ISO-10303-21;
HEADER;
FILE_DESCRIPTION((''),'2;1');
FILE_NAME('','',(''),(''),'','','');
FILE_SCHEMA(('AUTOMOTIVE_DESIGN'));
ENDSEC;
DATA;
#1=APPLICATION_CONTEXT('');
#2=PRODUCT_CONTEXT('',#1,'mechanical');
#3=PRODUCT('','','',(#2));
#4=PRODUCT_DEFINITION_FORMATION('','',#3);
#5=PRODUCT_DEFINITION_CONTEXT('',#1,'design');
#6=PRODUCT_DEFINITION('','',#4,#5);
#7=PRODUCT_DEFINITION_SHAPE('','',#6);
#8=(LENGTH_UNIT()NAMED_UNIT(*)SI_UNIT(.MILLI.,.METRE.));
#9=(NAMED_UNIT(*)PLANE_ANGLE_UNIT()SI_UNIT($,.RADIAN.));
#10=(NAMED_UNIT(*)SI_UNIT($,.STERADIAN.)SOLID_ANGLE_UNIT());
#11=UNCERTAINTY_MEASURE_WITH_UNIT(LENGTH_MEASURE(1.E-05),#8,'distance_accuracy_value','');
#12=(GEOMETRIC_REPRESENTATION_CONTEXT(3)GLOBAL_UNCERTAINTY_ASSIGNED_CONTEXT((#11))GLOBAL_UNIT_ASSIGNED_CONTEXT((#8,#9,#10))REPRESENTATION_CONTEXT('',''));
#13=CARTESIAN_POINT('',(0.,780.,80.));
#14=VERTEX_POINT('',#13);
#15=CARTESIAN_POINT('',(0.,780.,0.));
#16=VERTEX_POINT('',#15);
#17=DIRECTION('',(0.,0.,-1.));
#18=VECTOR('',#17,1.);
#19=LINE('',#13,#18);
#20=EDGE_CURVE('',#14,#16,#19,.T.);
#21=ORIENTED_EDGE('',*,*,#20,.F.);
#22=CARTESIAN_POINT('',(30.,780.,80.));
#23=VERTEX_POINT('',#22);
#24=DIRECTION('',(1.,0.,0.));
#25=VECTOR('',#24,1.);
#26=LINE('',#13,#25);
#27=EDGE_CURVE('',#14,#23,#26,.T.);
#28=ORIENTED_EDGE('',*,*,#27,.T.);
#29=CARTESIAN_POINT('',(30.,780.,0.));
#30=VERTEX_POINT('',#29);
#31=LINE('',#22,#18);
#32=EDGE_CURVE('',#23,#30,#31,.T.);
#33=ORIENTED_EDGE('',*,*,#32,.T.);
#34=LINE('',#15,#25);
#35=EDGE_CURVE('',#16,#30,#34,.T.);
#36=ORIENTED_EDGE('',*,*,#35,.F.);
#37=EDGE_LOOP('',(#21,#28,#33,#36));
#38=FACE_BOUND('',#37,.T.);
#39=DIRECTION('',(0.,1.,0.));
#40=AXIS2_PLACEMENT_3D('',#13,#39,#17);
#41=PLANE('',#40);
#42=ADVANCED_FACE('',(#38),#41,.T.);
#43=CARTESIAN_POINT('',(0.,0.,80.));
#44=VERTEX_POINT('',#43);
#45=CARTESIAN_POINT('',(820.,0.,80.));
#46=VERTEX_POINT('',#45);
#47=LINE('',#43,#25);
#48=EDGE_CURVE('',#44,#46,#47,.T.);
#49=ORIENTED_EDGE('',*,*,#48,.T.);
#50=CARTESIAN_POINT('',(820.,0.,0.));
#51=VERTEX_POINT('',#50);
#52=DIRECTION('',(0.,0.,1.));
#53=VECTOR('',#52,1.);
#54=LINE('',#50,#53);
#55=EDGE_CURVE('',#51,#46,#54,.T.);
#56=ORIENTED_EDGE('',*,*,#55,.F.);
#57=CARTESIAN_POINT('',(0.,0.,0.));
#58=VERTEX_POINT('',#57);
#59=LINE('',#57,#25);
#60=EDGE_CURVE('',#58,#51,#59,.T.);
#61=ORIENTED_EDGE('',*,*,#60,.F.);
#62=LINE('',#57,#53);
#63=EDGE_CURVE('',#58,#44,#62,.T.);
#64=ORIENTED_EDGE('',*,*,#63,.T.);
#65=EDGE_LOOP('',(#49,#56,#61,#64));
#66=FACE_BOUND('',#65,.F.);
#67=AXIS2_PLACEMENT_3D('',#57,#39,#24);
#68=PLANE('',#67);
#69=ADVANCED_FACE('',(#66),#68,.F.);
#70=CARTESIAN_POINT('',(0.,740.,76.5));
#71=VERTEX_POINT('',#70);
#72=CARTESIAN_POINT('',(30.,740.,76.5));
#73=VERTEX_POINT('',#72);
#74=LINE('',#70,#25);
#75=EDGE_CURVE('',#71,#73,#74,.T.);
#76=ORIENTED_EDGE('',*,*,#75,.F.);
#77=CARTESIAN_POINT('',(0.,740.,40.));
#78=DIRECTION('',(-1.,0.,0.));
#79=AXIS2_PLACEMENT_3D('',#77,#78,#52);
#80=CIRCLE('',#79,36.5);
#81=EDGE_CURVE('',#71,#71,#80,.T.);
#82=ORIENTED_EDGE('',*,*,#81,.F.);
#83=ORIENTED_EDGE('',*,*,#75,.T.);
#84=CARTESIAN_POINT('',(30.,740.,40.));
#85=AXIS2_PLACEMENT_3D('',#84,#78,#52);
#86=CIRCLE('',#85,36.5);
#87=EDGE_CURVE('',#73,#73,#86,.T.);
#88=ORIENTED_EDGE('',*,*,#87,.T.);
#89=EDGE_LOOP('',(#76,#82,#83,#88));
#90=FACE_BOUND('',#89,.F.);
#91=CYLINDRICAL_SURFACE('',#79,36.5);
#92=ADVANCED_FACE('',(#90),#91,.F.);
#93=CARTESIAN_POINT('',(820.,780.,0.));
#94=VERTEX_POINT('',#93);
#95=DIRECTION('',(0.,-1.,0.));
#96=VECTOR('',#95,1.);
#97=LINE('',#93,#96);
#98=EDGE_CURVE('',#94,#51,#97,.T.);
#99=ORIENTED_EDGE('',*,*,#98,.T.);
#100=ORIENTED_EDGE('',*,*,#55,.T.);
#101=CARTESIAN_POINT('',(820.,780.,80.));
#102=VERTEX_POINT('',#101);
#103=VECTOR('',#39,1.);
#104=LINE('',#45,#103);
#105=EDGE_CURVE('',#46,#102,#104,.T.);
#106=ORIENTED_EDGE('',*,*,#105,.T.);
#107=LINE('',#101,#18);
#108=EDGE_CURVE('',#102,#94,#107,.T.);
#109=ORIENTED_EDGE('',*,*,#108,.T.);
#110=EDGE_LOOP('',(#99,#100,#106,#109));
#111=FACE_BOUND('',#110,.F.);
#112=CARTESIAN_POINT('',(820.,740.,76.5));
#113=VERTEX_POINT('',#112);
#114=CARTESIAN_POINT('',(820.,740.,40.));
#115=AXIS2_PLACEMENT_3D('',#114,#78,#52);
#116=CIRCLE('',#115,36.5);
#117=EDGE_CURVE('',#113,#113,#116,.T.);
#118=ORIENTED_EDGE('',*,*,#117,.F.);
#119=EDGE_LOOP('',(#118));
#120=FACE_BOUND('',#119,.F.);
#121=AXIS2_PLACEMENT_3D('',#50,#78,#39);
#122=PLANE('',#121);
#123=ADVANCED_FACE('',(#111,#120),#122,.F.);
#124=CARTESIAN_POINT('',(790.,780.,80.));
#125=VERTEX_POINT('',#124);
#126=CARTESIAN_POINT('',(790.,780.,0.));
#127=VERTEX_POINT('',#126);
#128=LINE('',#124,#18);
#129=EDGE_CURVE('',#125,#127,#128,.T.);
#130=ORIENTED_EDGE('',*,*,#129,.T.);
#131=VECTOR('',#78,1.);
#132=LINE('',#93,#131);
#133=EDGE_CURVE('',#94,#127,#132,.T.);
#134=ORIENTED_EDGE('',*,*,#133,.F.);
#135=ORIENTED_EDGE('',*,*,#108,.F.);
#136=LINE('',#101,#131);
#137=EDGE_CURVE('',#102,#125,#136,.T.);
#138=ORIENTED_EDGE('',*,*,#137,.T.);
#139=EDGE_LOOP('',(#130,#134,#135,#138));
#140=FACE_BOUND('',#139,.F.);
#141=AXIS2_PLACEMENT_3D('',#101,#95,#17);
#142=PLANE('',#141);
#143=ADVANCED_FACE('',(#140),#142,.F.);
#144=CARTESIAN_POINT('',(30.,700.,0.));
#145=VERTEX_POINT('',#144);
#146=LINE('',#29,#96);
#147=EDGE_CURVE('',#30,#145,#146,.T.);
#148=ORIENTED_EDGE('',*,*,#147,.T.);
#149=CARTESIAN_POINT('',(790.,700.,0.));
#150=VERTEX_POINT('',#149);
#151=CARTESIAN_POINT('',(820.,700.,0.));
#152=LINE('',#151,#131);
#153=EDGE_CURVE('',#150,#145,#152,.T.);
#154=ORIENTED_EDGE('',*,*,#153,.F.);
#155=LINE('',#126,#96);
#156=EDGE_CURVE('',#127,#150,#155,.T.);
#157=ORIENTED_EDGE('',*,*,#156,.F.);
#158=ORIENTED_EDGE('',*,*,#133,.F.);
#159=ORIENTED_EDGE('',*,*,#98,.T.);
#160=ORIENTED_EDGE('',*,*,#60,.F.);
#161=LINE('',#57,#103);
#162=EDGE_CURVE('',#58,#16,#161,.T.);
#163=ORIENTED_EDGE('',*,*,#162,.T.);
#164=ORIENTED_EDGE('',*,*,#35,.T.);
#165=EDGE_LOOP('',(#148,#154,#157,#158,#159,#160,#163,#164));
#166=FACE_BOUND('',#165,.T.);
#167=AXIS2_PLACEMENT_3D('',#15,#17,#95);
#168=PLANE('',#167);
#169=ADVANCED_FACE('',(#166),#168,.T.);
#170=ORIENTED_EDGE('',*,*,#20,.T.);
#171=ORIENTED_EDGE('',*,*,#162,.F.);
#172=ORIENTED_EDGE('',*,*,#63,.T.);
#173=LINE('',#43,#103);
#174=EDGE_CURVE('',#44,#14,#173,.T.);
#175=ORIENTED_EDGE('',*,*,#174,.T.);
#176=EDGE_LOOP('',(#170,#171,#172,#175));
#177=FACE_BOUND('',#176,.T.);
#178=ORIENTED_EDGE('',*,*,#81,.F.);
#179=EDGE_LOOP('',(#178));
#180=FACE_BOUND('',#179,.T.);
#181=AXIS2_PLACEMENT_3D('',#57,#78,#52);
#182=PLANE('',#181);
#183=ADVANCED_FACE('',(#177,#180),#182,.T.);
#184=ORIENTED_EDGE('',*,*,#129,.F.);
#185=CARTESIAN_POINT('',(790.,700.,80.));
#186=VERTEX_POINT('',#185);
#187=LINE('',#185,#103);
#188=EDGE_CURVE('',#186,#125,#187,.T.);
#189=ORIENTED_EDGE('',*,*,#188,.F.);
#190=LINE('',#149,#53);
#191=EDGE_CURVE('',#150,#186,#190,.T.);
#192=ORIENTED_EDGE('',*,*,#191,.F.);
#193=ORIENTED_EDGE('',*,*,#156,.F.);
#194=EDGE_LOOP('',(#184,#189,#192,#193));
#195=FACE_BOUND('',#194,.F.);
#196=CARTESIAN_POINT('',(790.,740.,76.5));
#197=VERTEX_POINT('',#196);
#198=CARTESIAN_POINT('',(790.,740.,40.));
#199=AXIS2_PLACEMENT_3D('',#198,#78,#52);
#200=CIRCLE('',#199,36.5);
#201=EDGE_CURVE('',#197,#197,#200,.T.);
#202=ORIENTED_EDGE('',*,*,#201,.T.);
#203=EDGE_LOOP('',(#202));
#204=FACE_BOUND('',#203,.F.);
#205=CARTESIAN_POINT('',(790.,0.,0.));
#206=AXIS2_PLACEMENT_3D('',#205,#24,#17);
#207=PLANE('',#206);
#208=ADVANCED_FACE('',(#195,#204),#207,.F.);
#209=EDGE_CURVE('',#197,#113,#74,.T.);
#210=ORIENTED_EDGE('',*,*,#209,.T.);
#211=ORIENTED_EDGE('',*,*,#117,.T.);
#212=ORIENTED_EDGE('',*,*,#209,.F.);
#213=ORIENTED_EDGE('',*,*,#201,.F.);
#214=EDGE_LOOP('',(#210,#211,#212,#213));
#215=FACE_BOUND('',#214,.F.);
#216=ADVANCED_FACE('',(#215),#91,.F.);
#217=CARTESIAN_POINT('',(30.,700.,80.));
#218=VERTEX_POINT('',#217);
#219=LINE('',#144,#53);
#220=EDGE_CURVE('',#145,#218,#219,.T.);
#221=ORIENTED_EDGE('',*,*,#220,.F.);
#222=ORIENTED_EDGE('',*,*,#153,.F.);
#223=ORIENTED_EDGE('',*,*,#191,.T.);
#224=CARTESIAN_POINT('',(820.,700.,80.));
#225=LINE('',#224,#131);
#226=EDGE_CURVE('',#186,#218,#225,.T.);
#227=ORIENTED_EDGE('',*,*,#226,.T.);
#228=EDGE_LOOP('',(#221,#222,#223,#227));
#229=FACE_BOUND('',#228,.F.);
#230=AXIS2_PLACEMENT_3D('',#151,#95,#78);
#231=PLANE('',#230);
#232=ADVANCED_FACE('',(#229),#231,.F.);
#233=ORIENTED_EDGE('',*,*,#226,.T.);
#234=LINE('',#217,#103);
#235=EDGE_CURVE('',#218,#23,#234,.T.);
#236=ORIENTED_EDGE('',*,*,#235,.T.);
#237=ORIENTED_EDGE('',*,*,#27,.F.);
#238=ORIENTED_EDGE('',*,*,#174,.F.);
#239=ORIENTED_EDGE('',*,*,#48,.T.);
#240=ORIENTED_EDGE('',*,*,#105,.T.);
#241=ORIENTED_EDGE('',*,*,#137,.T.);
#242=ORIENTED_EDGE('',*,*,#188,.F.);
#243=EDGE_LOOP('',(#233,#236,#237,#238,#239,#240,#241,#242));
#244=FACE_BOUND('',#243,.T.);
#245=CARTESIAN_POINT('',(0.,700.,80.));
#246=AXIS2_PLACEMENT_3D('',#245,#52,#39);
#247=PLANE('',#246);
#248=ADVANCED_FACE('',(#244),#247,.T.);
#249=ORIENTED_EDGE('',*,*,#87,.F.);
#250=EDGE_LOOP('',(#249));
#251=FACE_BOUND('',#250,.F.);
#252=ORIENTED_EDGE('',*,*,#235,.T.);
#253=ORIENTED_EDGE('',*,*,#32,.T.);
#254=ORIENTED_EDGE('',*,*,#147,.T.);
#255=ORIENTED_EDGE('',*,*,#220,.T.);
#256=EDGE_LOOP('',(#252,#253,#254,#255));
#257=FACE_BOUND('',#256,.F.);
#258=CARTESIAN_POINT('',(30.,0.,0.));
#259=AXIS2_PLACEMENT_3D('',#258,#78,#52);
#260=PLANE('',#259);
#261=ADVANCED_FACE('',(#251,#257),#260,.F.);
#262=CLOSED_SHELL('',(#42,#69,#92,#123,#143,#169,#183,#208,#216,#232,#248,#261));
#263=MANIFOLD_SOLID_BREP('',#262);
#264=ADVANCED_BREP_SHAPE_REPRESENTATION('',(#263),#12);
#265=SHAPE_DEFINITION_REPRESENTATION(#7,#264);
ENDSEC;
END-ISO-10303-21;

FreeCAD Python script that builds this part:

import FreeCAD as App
import Part
import Sketcher
from FreeCAD import Vector

doc = App.newDocument("Part")
body = doc.addObject("PartDesign::Body", "Body")

# Sketch on XY plane
sketch1 = body.newObject("Sketcher::SketchObject", "Sketch")
sketch1.AttachmentSupport = (doc.getObject("XY_Plane"), [""])
sketch1.MapMode = "FlatFace"
sketch1.addGeometry([
    Part.LineSegment(Vector(0, 700, 0), Vector(0, 0, 0)),
    Part.LineSegment(Vector(0, 0, 0), Vector(820, 0, 0)),
    Part.LineSegment(Vector(820, 0, 0), Vector(820, 700, 0)),
    Part.LineSegment(Vector(820, 700, 0), Vector(0, 700, 0)),
], False)
sketch1.addConstraint([
    Sketcher.Constraint("Coincident", 0, 2, 1, 1),
    Sketcher.Constraint("Coincident", 1, 2, 2, 1),
    Sketcher.Constraint("Coincident", 2, 2, 3, 1),
    Sketcher.Constraint("Coincident", 3, 2, 0, 1),
    Sketcher.Constraint("Vertical", 0),
    Sketcher.Constraint("Horizontal", 1),
    Sketcher.Constraint("Vertical", 2),
    Sketcher.Constraint("Horizontal", 3),
    Sketcher.Constraint("Coincident", 0, 2, -1, 1),
    Sketcher.Constraint("DistanceX", 1, 1, 1, 2, 820.0),
    Sketcher.Constraint("DistanceY", 0, 2, 0, 1, 700.0),
])
pad1 = body.newObject("PartDesign::Pad", "Pad")
pad1.Profile = sketch1
pad1.Length = 80

# Sketch on YZ plane
sketch2 = body.newObject("Sketcher::SketchObject", "Sketch001")
sketch2.AttachmentSupport = (doc.getObject("YZ_Plane"), [""])
sketch2.MapMode = "FlatFace"
sketch2.AttachmentOffset = App.Placement(Vector(0, 0, 820), App.Rotation())
sketch2.addGeometry([
    Part.LineSegment(Vector(700, 80, 0), Vector(700, 0, 0)),
    Part.LineSegment(Vector(700, 0, 0), Vector(780, 0, 0)),
    Part.LineSegment(Vector(780, 0, 0), Vector(780, 80, 0)),
    Part.LineSegment(Vector(780, 80, 0), Vector(700, 80, 0)),
], False)
sketch2.addConstraint([
    Sketcher.Constraint("Coincident", 0, 2, 1, 1),
    Sketcher.Constraint("Coincident", 1, 2, 2, 1),
    Sketcher.Constraint("Coincident", 2, 2, 3, 1),
    Sketcher.Constraint("Coincident", 3, 2, 0, 1),
    Sketcher.Constraint("Vertical", 0),
    Sketcher.Constraint("Horizontal", 1),
    Sketcher.Constraint("Vertical", 2),
    Sketcher.Constraint("Horizontal", 3),
    Sketcher.Constraint("PointOnObject", 0, 2, -1),
    Sketcher.Constraint("Equal", 3, 0),
    Sketcher.Constraint("DistanceX", 1, 1, 1, 2, 80.0),
    Sketcher.Constraint("DistanceX", -1, 1, 0, 2, 700.0),
])
pad2 = body.newObject("PartDesign::Pad", "Pad001")
pad2.Profile = sketch2
pad2.Length = 30
pad2.Reversed = True

# Sketch on YZ plane
sketch3 = body.newObject("Sketcher::SketchObject", "Sketch002")
sketch3.AttachmentSupport = (doc.getObject("YZ_Plane"), [""])
sketch3.MapMode = "FlatFace"
sketch3.addGeometry([
    Part.LineSegment(Vector(780, 0, 0), Vector(700, 0, 0)),
    Part.LineSegment(Vector(700, 0, 0), Vector(700, 80, 0)),
    Part.LineSegment(Vector(700, 80, 0), Vector(780, 80, 0)),
    Part.LineSegment(Vector(780, 80, 0), Vector(780, 0, 0)),
], False)
sketch3.addConstraint([
    Sketcher.Constraint("Coincident", 0, 2, 1, 1),
    Sketcher.Constraint("Coincident", 1, 2, 2, 1),
    Sketcher.Constraint("Coincident", 2, 2, 3, 1),
    Sketcher.Constraint("Coincident", 3, 2, 0, 1),
    Sketcher.Constraint("Horizontal", 0),
    Sketcher.Constraint("Vertical", 1),
    Sketcher.Constraint("Horizontal", 2),
    Sketcher.Constraint("Vertical", 3),
    Sketcher.Constraint("PointOnObject", 0, 2, -1),
    Sketcher.Constraint("Equal", 2, 1),
    Sketcher.Constraint("DistanceX", 0, 2, 0, 1, 80.0),
    Sketcher.Constraint("DistanceX", -1, 1, 0, 2, 700.0),
])
pad3 = body.newObject("PartDesign::Pad", "Pad002")
pad3.Profile = sketch3
pad3.Length = 30

# Sketch on YZ plane
sketch4 = body.newObject("Sketcher::SketchObject", "Sketch003")
sketch4.AttachmentSupport = (doc.getObject("YZ_Plane"), [""])
sketch4.MapMode = "FlatFace"
sketch4.addGeometry(Part.Circle(Vector(740, 40, 0), Vector(0, 0, 1), 36.5), False)
sketch4.addConstraint([
    Sketcher.Constraint("Diameter", 0, 73.0),
    Sketcher.Constraint("DistanceX", -1, 1, 0, 3, 740.0),
    Sketcher.Constraint("DistanceY", -1, 1, 0, 3, 40.0),
])
pocket1 = body.newObject("PartDesign::Pocket", "Pocket")
pocket1.Profile = sketch4
pocket1.Length = 940.75
pocket1.Reversed = True

doc.recompute()
